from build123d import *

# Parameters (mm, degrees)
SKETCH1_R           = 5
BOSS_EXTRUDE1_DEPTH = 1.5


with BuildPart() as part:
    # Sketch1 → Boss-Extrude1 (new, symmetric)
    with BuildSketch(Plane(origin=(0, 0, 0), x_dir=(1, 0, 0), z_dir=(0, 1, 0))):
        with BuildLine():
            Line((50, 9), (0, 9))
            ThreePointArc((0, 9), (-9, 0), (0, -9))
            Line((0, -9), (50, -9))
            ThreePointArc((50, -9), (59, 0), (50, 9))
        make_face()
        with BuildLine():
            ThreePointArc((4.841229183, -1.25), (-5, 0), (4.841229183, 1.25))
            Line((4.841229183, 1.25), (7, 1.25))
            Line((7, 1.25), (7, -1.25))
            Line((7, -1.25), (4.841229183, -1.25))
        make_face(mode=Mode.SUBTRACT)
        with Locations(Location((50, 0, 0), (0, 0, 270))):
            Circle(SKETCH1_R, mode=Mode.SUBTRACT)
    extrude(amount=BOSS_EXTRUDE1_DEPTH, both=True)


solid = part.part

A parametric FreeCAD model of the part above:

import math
import FreeCAD as App
import Part
import Sketcher

doc = App.newDocument("Part")
params = doc.addObject("Spreadsheet::Sheet", "Params")
for row, (alias, value) in enumerate([
    ("sketch1_diameter", "10 mm"),
    ("sketch1_radius", "9 mm"),
    ("sketch1_width", "50 mm"),
    ("sketch1_height", "2.5 mm"),
    ("pad1_length", "3 mm"),
], start=1):
    params.set(f"A{row}", alias)
    params.set(f"B{row}", "=" + value)
    params.setAlias(f"B{row}", alias)

body = doc.addObject("PartDesign::Body", "Body")

sketch1 = body.newObject("Sketcher::SketchObject", "Sketch")
sketch1.AttachmentSupport = (doc.getObject("XZ_Plane"), [""])
sketch1.MapMode = "FlatFace"
sketch1.addGeometry([
    Part.LineSegment(App.Vector(50, -9, 0), App.Vector(0, -9, 0)),
    Part.ArcOfCircle(Part.Circle(App.Vector(0, 0, 0), App.Vector(0, 0, 1), 9), math.radians(90), math.radians(270)),
    Part.LineSegment(App.Vector(0, 9, 0), App.Vector(50, 9, 0)),
    Part.ArcOfCircle(Part.Circle(App.Vector(50, 0, 0), App.Vector(0, 0, 1), 9), math.radians(-90), math.radians(90)),
    Part.LineSegment(App.Vector(7, 1.2, 0), App.Vector(4.8, 1.2, 0)),
    Part.ArcOfCircle(Part.Circle(App.Vector(0, 0, 0), App.Vector(0, 0, 1), 5), math.radians(14), math.radians(346)),
    Part.LineSegment(App.Vector(4.8, -1.2, 0), App.Vector(7, -1.2, 0)),
    Part.LineSegment(App.Vector(7, -1.2, 0), App.Vector(7, 1.2, 0)),
    Part.Circle(App.Vector(50, 0, 0), App.Vector(0, 0, 1), 5),
], False)
sketch1.addConstraint([
    Sketcher.Constraint("Tangent", 0, 2, 1, 2),
    Sketcher.Constraint("Tangent", 1, 1, 2, 1),
    Sketcher.Constraint("Tangent", 2, 2, 3, 2),
    Sketcher.Constraint("Tangent", 3, 1, 0, 1),
    Sketcher.Constraint("Coincident", 4, 2, 5, 1),
    Sketcher.Constraint("Coincident", 5, 2, 6, 1),
    Sketcher.Constraint("Coincident", 6, 2, 7, 1),
    Sketcher.Constraint("Coincident", 7, 2, 4, 1),
    Sketcher.Constraint("Horizontal", 0),
    Sketcher.Constraint("Horizontal", 2),
    Sketcher.Constraint("Horizontal", 4),
    Sketcher.Constraint("Horizontal", 6),
    Sketcher.Constraint("Vertical", 7),
    Sketcher.Constraint("Coincident", 1, 3, -1, 1),
    Sketcher.Constraint("Coincident", 5, 3, -1, 1),
    Sketcher.Constraint("Coincident", 8, 3, 3, 3),
    Sketcher.Constraint("Equal", 5, 8),
    Sketcher.Constraint("Vertical", 4, 2, 5, 2),
    Sketcher.Constraint("Diameter", 8, 10.0),
    Sketcher.Constraint("Radius", 1, 9.0),
    Sketcher.Constraint("DistanceX", 0, 2, 0, 1, 50.0),
    Sketcher.Constraint("DistanceY", 7, 1, 7, 2, 2.5),
    Sketcher.Constraint("DistanceX", -1, 1, 6, 2, 7.0),
])
sketch1.setExpression("Constraints[18]", "Params.sketch1_diameter")
sketch1.setExpression("Constraints[19]", "Params.sketch1_radius")
sketch1.setExpression("Constraints[20]", "Params.sketch1_width")
sketch1.setExpression("Constraints[21]", "Params.sketch1_height")
pad1 = body.newObject("PartDesign::Pad", "Pad")
pad1.Profile = sketch1
pad1.setExpression("Length", "Params.pad1_length")
pad1.Midplane = True

doc.recompute()
